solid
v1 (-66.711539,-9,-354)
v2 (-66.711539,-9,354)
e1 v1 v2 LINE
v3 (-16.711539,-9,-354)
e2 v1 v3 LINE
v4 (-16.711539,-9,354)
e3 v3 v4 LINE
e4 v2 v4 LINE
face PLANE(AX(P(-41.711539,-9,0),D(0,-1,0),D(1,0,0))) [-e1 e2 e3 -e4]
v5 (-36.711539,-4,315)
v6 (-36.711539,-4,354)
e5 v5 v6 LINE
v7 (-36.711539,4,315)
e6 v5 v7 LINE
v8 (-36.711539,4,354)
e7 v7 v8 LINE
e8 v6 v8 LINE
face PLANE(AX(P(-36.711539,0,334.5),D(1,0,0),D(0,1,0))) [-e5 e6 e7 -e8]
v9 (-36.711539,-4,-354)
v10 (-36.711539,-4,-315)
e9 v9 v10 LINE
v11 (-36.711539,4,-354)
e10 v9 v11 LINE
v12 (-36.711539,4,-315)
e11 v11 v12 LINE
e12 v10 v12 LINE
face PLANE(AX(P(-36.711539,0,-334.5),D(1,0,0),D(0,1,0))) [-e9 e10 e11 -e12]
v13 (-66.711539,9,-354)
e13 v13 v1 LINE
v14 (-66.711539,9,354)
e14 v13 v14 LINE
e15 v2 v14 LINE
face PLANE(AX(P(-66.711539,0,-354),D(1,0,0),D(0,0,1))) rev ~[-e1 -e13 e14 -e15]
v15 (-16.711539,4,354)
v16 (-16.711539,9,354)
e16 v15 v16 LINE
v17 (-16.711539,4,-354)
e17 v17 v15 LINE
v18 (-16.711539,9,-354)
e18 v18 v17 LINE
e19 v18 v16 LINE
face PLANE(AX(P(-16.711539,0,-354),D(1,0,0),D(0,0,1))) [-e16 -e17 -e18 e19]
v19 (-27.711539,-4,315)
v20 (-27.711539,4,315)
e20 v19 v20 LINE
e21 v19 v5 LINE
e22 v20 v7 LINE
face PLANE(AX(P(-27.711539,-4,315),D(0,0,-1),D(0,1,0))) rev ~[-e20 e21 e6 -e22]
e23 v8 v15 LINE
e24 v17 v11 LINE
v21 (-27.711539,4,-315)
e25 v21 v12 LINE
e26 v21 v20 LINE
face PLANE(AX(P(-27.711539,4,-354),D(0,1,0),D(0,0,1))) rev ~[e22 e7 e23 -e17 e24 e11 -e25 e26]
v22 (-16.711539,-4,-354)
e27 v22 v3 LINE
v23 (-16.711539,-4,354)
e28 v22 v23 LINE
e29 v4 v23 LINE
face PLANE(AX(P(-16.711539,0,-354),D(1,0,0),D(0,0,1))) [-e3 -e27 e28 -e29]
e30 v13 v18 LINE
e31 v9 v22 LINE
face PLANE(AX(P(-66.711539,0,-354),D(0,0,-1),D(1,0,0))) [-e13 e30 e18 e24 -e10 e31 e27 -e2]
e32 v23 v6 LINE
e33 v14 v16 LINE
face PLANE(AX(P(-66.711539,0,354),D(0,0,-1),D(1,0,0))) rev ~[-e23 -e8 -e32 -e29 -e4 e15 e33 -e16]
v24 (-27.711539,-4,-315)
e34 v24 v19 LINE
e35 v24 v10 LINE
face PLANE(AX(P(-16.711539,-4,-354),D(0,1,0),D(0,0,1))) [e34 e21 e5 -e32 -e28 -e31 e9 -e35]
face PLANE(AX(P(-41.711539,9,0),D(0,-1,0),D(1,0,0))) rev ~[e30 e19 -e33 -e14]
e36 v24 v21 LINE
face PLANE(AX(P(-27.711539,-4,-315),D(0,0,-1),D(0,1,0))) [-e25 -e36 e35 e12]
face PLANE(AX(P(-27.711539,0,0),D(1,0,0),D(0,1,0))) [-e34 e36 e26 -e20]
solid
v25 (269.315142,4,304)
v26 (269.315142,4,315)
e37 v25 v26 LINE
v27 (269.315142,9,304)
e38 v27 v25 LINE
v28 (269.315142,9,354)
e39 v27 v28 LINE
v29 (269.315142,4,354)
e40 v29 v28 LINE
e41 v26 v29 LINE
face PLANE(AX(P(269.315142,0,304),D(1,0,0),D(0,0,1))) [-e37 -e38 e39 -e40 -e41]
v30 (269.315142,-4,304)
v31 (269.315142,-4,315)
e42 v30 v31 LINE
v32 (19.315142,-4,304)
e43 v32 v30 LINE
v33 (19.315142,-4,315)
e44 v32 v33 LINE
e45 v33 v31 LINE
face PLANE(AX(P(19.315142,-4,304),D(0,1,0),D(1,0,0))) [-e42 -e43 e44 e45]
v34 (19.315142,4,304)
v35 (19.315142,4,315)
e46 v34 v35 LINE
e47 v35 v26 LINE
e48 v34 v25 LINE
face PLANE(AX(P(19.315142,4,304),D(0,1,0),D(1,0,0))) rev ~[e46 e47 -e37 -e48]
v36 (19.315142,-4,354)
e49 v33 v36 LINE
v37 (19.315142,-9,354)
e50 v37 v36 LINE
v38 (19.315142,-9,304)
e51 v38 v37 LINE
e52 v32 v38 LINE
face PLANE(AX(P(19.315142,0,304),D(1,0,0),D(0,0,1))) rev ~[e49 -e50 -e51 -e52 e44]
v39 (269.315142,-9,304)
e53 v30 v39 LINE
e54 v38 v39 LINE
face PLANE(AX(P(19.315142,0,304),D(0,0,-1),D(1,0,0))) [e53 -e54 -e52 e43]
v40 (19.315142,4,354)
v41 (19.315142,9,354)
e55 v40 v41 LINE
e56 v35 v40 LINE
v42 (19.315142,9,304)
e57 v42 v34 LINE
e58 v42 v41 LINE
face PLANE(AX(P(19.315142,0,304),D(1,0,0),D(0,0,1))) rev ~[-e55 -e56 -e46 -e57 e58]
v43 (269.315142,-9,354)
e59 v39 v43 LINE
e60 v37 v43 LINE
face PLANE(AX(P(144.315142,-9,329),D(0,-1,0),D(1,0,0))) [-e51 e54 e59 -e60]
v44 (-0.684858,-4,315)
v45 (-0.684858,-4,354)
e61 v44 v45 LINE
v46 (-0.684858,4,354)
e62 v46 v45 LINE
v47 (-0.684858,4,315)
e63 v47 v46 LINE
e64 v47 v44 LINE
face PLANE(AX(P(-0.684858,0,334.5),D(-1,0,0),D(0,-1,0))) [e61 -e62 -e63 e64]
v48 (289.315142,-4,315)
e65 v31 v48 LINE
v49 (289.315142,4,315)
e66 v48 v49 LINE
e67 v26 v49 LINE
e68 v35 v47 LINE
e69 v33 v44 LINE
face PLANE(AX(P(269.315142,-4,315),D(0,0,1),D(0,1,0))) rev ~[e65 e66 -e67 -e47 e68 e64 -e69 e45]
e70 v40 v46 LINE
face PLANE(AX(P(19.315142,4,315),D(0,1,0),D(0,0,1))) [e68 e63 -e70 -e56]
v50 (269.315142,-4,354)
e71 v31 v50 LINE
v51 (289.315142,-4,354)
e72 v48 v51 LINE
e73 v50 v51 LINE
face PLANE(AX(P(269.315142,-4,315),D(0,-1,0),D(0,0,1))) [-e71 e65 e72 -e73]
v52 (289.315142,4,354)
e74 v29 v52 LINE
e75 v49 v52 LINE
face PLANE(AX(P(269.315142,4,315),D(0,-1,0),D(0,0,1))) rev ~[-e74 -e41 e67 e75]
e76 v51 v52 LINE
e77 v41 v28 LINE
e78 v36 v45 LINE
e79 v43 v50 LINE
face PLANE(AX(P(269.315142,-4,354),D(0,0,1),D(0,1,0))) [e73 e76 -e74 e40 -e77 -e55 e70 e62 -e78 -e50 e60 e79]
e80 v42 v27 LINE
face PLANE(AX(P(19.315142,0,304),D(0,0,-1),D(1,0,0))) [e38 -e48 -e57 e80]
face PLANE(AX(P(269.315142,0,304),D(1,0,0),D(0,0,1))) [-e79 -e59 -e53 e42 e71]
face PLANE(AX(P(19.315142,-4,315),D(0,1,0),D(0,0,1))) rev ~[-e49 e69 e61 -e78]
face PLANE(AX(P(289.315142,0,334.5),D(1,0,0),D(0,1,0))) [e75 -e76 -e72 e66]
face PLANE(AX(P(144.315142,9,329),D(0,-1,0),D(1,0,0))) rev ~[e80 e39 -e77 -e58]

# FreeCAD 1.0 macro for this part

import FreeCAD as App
import Part
import Sketcher

V = App.Vector


def add_polygon(sketch, points):
    """Adds a closed chain of lines whose ends are joined by coincident constraints."""
    first, n = sketch.GeometryCount, len(points)
    for a, b in zip(points, points[1:] + points[:1]):
        sketch.addGeometry(Part.LineSegment(App.Vector(*a, 0), App.Vector(*b, 0)), False)
    for i in range(n):
        sketch.addConstraint(Sketcher.Constraint("Coincident", first + i, 2, first + (i + 1) % n, 1))

doc = App.newDocument("Part")
params = doc.addObject("Spreadsheet::Sheet", "Params")
for row, (alias, value) in enumerate([
    ("sketch1_width", "250 mm"),
    ("sketch1_height", "50 mm"),
    ("pad1_length", "18 mm"),
    ("sketch2_width", "250 mm"),
    ("sketch2_height", "8 mm"),
    ("pocket1_length", "11 mm"),
    ("sketch3_width", "8 mm"),
    ("sketch3_height", "39 mm"),
    ("pad2_length", "20 mm"),
    ("sketch4_width", "8 mm"),
    ("sketch4_height", "39 mm"),
    ("pad3_length", "20 mm"),
    ("sketch5_width", "50 mm"),
    ("sketch5_height", "708 mm"),
    ("pad4_length", "18 mm"),
    ("sketch6_width", "8 mm"),
    ("sketch6_height", "708 mm"),
    ("pocket2_length", "11 mm"),
    ("sketch7_width", "8 mm"),
    ("sketch7_height", "39 mm"),
    ("pocket3_length", "9 mm"),
    ("sketch8_width", "50 mm"),
    ("sketch8_height", "708 mm"),
    ("pad5_length", "18 mm"),
    ("sketch9_width", "8 mm"),
    ("sketch9_height", "708 mm"),
    ("pocket4_length", "11 mm"),
    ("sketch10_width", "8 mm"),
    ("sketch10_height", "50 mm"),
    ("pocket5_length", "9 mm"),
    ("sketch11_width", "250 mm"),
    ("sketch11_height", "50 mm"),
    ("pad6_length", "18 mm"),
], start=1):
    params.set(f"A{row}", alias)
    params.set(f"B{row}", "=" + value)
    params.setAlias(f"B{row}", alias)

body = doc.addObject("PartDesign::Body", "Body")

sketch1 = doc.addObject("Sketcher::SketchObject", "Sketch")
body.addObject(sketch1)
sketch1.AttachmentSupport = (doc.XZ_Plane, [""])
sketch1.MapMode = "FlatFace"
add_polygon(sketch1, [(19, 354), (19, 304), (269, 304), (269, 354)])
sketch1.addConstraint([
    Sketcher.Constraint("Vertical", 0),
    Sketcher.Constraint("Horizontal", 1),
    Sketcher.Constraint("Vertical", 2),
    Sketcher.Constraint("Horizontal", 3),
    Sketcher.Constraint("DistanceX", 1, 1, 1, 2, 250.0),
    Sketcher.Constraint("DistanceY", 0, 2, 0, 1, 50.0),
    Sketcher.Constraint("DistanceY", -1, 1, 0, 2, 304.0),
    Sketcher.Constraint("DistanceX", -1, 1, 0, 2, 19.315142),
])
sketch1.setExpression("Constraints[8]", "Params.sketch1_width")
sketch1.setExpression("Constraints[9]", "Params.sketch1_height")
pad1 = doc.addObject("PartDesign::Pad", "Pad")
body.addObject(pad1)
pad1.Profile = sketch1
pad1.setExpression("Length", "Params.pad1_length")
pad1.Midplane = True

sketch2 = doc.addObject("Sketcher::SketchObject", "Sketch001")
body.addObject(sketch2)
sketch2.AttachmentSupport = (doc.XY_Plane, [""])
sketch2.MapMode = "FlatFace"
sketch2.AttachmentOffset = App.Placement(V(0, 0, 304), App.Rotation())
add_polygon(sketch2, [(19, -4), (19, 4), (269, 4), (269, -4)])
sketch2.addConstraint([
    Sketcher.Constraint("Vertical", 0),
    Sketcher.Constraint("Horizontal", 1),
    Sketcher.Constraint("Vertical", 2),
    Sketcher.Constraint("Horizontal", 3),
    Sketcher.Constraint("DistanceX", 1, 1, 1, 2, 250.0),
    Sketcher.Constraint("DistanceY", 0, 1, 0, 2, 8.0),
    Sketcher.Constraint("DistanceY", -1, 1, 0, 2, 4.0),
    Sketcher.Constraint("DistanceX", -1, 1, 0, 2, 19.315142),
])
sketch2.setExpression("Constraints[8]", "Params.sketch2_width")
sketch2.setExpression("Constraints[9]", "Params.sketch2_height")
pocket1 = doc.addObject("PartDesign::Pocket", "Pocket")
body.addObject(pocket1)
pocket1.Profile = sketch2
pocket1.setExpression("Length", "Params.pocket1_length")
pocket1.Reversed = True

sketch3 = doc.addObject("Sketcher::SketchObject", "Sketch002")
body.addObject(sketch3)
sketch3.AttachmentSupport = (doc.YZ_Plane, [""])
sketch3.MapMode = "FlatFace"
sketch3.AttachmentOffset = App.Placement(V(0, 0, 19.315142), App.Rotation())
add_polygon(sketch3, [(4, 354), (4, 315), (-4, 315), (-4, 354)])
sketch3.addConstraint([
    Sketcher.Constraint("Vertical", 0),
    Sketcher.Constraint("Horizontal", 1),
    Sketcher.Constraint("Vertical", 2),
    Sketcher.Constraint("Horizontal", 3),
    Sketcher.Constraint("DistanceX", 1, 2, 1, 1, 8.0),
    Sketcher.Constraint("DistanceY", 0, 2, 0, 1, 39.0),
    Sketcher.Constraint("DistanceX", -1, 1, 0, 2, 4.0),
    Sketcher.Constraint("DistanceY", -1, 1, 0, 2, 315.0),
])
sketch3.setExpression("Constraints[8]", "Params.sketch3_width")
sketch3.setExpression("Constraints[9]", "Params.sketch3_height")
pad2 = doc.addObject("PartDesign::Pad", "Pad001")
body.addObject(pad2)
pad2.Profile = sketch3
pad2.setExpression("Length", "Params.pad2_length")
pad2.Reversed = True

sketch4 = doc.addObject("Sketcher::SketchObject", "Sketch003")
body.addObject(sketch4)
sketch4.AttachmentSupport = (doc.YZ_Plane, [""])
sketch4.MapMode = "FlatFace"
sketch4.AttachmentOffset = App.Placement(V(0, 0, 269.315142), App.Rotation())
add_polygon(sketch4, [(-4, 354), (-4, 315), (4, 315), (4, 354)])
sketch4.addConstraint([
    Sketcher.Constraint("Vertical", 0),
    Sketcher.Constraint("Horizontal", 1),
    Sketcher.Constraint("Vertical", 2),
    Sketcher.Constraint("Horizontal", 3),
    Sketcher.Constraint("DistanceX", 1, 1, 1, 2, 8.0),
    Sketcher.Constraint("DistanceY", 0, 2, 0, 1, 39.0),
    Sketcher.Constraint("DistanceX", 0, 2, -1, 1, 4.0),
    Sketcher.Constraint("DistanceY", -1, 1, 0, 2, 315.0),
])
sketch4.setExpression("Constraints[8]", "Params.sketch4_width")
sketch4.setExpression("Constraints[9]", "Params.sketch4_height")
pad3 = doc.addObject("PartDesign::Pad", "Pad002")
body.addObject(pad3)
pad3.Profile = sketch4
pad3.setExpression("Length", "Params.pad3_length")
body2 = doc.addObject("PartDesign::Body", "Body001")

sketch5 = doc.addObject("Sketcher::SketchObject", "Sketch004")
body2.addObject(sketch5)
sketch5.AttachmentSupport = (doc.getObject("XZ_Plane001"), [""])
sketch5.MapMode = "FlatFace"
add_polygon(sketch5, [(-67, 354), (-67, -354), (-17, -354), (-17, 354)])
sketch5.addConstraint([
    Sketcher.Constraint("Vertical", 0),
    Sketcher.Constraint("Horizontal", 1),
    Sketcher.Constraint("Vertical", 2),
    Sketcher.Constraint("Horizontal", 3),
    Sketcher.Constraint("DistanceX", 1, 1, 1, 2, 50.0),
    Sketcher.Constraint("DistanceY", 0, 2, 0, 1, 708.0),
    Sketcher.Constraint("DistanceY", 0, 2, -1, 1, 354.0),
    Sketcher.Constraint("DistanceX", 0, 2, -1, 1, 66.711539),
])
sketch5.setExpression("Constraints[8]", "Params.sketch5_width")
sketch5.setExpression("Constraints[9]", "Params.sketch5_height")
pad4 = doc.addObject("PartDesign::Pad", "Pad003")
body2.addObject(pad4)
pad4.Profile = sketch5
pad4.setExpression("Length", "Params.pad4_length")
pad4.Midplane = True

sketch6 = doc.addObject("Sketcher::SketchObject", "Sketch005")
body2.addObject(sketch6)
sketch6.AttachmentSupport = (doc.getObject("YZ_Plane001"), [""])
sketch6.MapMode = "FlatFace"
sketch6.AttachmentOffset = App.Placement(V(0, 0, -16.711539), App.Rotation())
add_polygon(sketch6, [(-4, 354), (-4, -354), (4, -354), (4, 354)])
sketch6.addConstraint([
    Sketcher.Constraint("Vertical", 0),
    Sketcher.Constraint("Horizontal", 1),
    Sketcher.Constraint("Vertical", 2),
    Sketcher.Constraint("Horizontal", 3),
    Sketcher.Constraint("Symmetric", 0, 2, 2, 2, -1, 1),
    Sketcher.Constraint("DistanceX", 1, 1, 1, 2, 8.0),
    Sketcher.Constraint("DistanceY", 0, 2, 0, 1, 708.0),
])
sketch6.setExpression("Constraints[9]", "Params.sketch6_width")
sketch6.setExpression("Constraints[10]", "Params.sketch6_height")
pocket2 = doc.addObject("PartDesign::Pocket", "Pocket001")
body2.addObject(pocket2)
pocket2.Profile = sketch6
pocket2.setExpression("Length", "Params.pocket2_length")

sketch7 = doc.addObject("Sketcher::SketchObject", "Sketch006")
body2.addObject(sketch7)
sketch7.AttachmentSupport = (doc.getObject("YZ_Plane001"), [""])
sketch7.MapMode = "FlatFace"
sketch7.AttachmentOffset = App.Placement(V(0, 0, -27.711539), App.Rotation())
add_polygon(sketch7, [(-4, 354), (-4, 315), (4, 315), (4, 354)])
add_polygon(sketch7, [(-4, -315), (-4, -354), (4, -354), (4, -315)])
sketch7.addConstraint([
    Sketcher.Constraint("Vertical", 0),
    Sketcher.Constraint("Horizontal", 1),
    Sketcher.Constraint("Vertical", 2),
    Sketcher.Constraint("Horizontal", 3),
    Sketcher.Constraint("Vertical", 4),
    Sketcher.Constraint("Horizontal", 5),
    Sketcher.Constraint("Vertical", 6),
    Sketcher.Constraint("Horizontal", 7),
    Sketcher.Constraint("Symmetric", 2, 2, 4, 2, -1, 1),
    Sketcher.Constraint("Symmetric", 0, 2, 6, 2, -1, 1),
    Sketcher.Constraint("Vertical", 3, 2, 4, 2),
    Sketcher.Constraint("DistanceX", 1, 1, 1, 2, 8.0),
    Sketcher.Constraint("DistanceY", 0, 2, 0, 1, 39.0),
    Sketcher.Constraint("DistanceY", -1, 1, 0, 2, 315.0),
])
sketch7.setExpression("Constraints[19]", "Params.sketch7_width")
sketch7.setExpression("Constraints[20]", "Params.sketch7_height")
pocket3 = doc.addObject("PartDesign::Pocket", "Pocket002")
body2.addObject(pocket3)
pocket3.Profile = sketch7
pocket3.setExpression("Length", "Params.pocket3_length")
body3 = doc.addObject("PartDesign::Body", "Body002")

sketch8 = doc.addObject("Sketcher::SketchObject", "Sketch007")
body3.addObject(sketch8)
sketch8.AttachmentSupport = (doc.getObject("XZ_Plane002"), [""])
sketch8.MapMode = "FlatFace"
add_polygon(sketch8, [(295, 354), (295, -354), (345, -354), (345, 354)])
sketch8.addConstraint([
    Sketcher.Constraint("Vertical", 0),
    Sketcher.Constraint("Horizontal", 1),
    Sketcher.Constraint("Vertical", 2),
    Sketcher.Constraint("Horizontal", 3),
    Sketcher.Constraint("DistanceX", 1, 1, 1, 2, 50.0),
    Sketcher.Constraint("DistanceY", 0, 2, 0, 1, 708.0),
    Sketcher.Constraint("DistanceY", 0, 2, -1, 1, 354.0),
    Sketcher.Constraint("DistanceX", -1, 1, 0, 2, 294.889933),
])
sketch8.setExpression("Constraints[8]", "Params.sketch8_width")
sketch8.setExpression("Constraints[9]", "Params.sketch8_height")
pad5 = doc.addObject("PartDesign::Pad", "Pad004")
body3.addObject(pad5)
pad5.Profile = sketch8
pad5.setExpression("Length", "Params.pad5_length")
pad5.Midplane = True

sketch9 = doc.addObject("Sketcher::SketchObject", "Sketch008")
body3.addObject(sketch9)
sketch9.AttachmentSupport = (doc.getObject("YZ_Plane002"), [""])
sketch9.MapMode = "FlatFace"
sketch9.AttachmentOffset = App.Placement(V(0, 0, 294.889933), App.Rotation())
add_polygon(sketch9, [(4, 354), (4, -354), (-4, -354), (-4, 354)])
sketch9.addConstraint([
    Sketcher.Constraint("Vertical", 0),
    Sketcher.Constraint("Horizontal", 1),
    Sketcher.Constraint("Vertical", 2),
    Sketcher.Constraint("Horizontal", 3),
    Sketcher.Constraint("Symmetric", 0, 2, 2, 2, -1, 1),
    Sketcher.Constraint("DistanceX", 1, 2, 1, 1, 8.0),
    Sketcher.Constraint("DistanceY", 0, 2, 0, 1, 708.0),
])
sketch9.setExpression("Constraints[9]", "Params.sketch9_width")
sketch9.setExpression("Constraints[10]", "Params.sketch9_height")
pocket4 = doc.addObject("PartDesign::Pocket", "Pocket003")
body3.addObject(pocket4)
pocket4.Profile = sketch9
pocket4.setExpression("Length", "Params.pocket4_length")
pocket4.Reversed = True

sketch10 = doc.addObject("Sketcher::SketchObject", "Sketch009")
body3.addObject(sketch10)
sketch10.AttachmentSupport = (doc.getObject("YZ_Plane002"), [""])
sketch10.MapMode = "FlatFace"
sketch10.AttachmentOffset = App.Placement(V(0, 0, 305.889933), App.Rotation())
add_polygon(sketch10, [(4, 354), (4, 304), (-4, 304), (-4, 354)])
add_polygon(sketch10, [(4, -304), (4, -354), (-4, -354), (-4, -304)])
sketch10.addConstraint([
    Sketcher.Constraint("Vertical", 0),
    Sketcher.Constraint("Horizontal", 1),
    Sketcher.Constraint("Vertical", 2),
    Sketcher.Constraint("Horizontal", 3),
    Sketcher.Constraint("Vertical", 4),
    Sketcher.Constraint("Horizontal", 5),
    Sketcher.Constraint("Vertical", 6),
    Sketcher.Constraint("Horizontal", 7),
    Sketcher.Constraint("Symmetric", 2, 2, 4, 2, -1, 1),
    Sketcher.Constraint("Symmetric", 0, 2, 6, 2, -1, 1),
    Sketcher.Constraint("Vertical", 3, 2, 4, 2),
    Sketcher.Constraint("DistanceX", 1, 2, 1, 1, 8.0),
    Sketcher.Constraint("DistanceY", 0, 2, 0, 1, 50.0),
    Sketcher.Constraint("DistanceY", -1, 1, 0, 2, 304.0),
])
sketch10.setExpression("Constraints[19]", "Params.sketch10_width")
sketch10.setExpression("Constraints[20]", "Params.sketch10_height")
pocket5 = doc.addObject("PartDesign::Pocket", "Pocket004")
body3.addObject(pocket5)
pocket5.Profile = sketch10
pocket5.setExpression("Length", "Params.pocket5_length")
pocket5.Reversed = True
body4 = doc.addObject("PartDesign::Body", "Body003")

sketch11 = doc.addObject("Sketcher::SketchObject", "Sketch010")
body4.addObject(sketch11)
sketch11.AttachmentSupport = (doc.getObject("XZ_Plane003"), [""])
sketch11.MapMode = "FlatFace"
add_polygon(sketch11, [(19, -304), (19, -354), (269, -354), (269, -304)])
sketch11.addConstraint([
    Sketcher.Constraint("Vertical", 0),
    Sketcher.Constraint("Horizontal", 1),
    Sketcher.Constraint("Vertical", 2),
    Sketcher.Constraint("Horizontal", 3),
    Sketcher.Constraint("DistanceX", 1, 1, 1, 2, 250.0),
    Sketcher.Constraint("DistanceY", 0, 2, 0, 1, 50.0),
    Sketcher.Constraint("DistanceY", 0, 2, -1, 1, 354.0),
    Sketcher.Constraint("DistanceX", -1, 1, 0, 2, 19.315142),
])
sketch11.setExpression("Constraints[8]", "Params.sketch11_width")
sketch11.setExpression("Constraints[9]", "Params.sketch11_height")
pad6 = doc.addObject("PartDesign::Pad", "Pad005")
body4.addObject(pad6)
pad6.Profile = sketch11
pad6.setExpression("Length", "Params.pad6_length")
pad6.Midplane = True
body3.Visibility = False
body4.Visibility = False

doc.recompute()
